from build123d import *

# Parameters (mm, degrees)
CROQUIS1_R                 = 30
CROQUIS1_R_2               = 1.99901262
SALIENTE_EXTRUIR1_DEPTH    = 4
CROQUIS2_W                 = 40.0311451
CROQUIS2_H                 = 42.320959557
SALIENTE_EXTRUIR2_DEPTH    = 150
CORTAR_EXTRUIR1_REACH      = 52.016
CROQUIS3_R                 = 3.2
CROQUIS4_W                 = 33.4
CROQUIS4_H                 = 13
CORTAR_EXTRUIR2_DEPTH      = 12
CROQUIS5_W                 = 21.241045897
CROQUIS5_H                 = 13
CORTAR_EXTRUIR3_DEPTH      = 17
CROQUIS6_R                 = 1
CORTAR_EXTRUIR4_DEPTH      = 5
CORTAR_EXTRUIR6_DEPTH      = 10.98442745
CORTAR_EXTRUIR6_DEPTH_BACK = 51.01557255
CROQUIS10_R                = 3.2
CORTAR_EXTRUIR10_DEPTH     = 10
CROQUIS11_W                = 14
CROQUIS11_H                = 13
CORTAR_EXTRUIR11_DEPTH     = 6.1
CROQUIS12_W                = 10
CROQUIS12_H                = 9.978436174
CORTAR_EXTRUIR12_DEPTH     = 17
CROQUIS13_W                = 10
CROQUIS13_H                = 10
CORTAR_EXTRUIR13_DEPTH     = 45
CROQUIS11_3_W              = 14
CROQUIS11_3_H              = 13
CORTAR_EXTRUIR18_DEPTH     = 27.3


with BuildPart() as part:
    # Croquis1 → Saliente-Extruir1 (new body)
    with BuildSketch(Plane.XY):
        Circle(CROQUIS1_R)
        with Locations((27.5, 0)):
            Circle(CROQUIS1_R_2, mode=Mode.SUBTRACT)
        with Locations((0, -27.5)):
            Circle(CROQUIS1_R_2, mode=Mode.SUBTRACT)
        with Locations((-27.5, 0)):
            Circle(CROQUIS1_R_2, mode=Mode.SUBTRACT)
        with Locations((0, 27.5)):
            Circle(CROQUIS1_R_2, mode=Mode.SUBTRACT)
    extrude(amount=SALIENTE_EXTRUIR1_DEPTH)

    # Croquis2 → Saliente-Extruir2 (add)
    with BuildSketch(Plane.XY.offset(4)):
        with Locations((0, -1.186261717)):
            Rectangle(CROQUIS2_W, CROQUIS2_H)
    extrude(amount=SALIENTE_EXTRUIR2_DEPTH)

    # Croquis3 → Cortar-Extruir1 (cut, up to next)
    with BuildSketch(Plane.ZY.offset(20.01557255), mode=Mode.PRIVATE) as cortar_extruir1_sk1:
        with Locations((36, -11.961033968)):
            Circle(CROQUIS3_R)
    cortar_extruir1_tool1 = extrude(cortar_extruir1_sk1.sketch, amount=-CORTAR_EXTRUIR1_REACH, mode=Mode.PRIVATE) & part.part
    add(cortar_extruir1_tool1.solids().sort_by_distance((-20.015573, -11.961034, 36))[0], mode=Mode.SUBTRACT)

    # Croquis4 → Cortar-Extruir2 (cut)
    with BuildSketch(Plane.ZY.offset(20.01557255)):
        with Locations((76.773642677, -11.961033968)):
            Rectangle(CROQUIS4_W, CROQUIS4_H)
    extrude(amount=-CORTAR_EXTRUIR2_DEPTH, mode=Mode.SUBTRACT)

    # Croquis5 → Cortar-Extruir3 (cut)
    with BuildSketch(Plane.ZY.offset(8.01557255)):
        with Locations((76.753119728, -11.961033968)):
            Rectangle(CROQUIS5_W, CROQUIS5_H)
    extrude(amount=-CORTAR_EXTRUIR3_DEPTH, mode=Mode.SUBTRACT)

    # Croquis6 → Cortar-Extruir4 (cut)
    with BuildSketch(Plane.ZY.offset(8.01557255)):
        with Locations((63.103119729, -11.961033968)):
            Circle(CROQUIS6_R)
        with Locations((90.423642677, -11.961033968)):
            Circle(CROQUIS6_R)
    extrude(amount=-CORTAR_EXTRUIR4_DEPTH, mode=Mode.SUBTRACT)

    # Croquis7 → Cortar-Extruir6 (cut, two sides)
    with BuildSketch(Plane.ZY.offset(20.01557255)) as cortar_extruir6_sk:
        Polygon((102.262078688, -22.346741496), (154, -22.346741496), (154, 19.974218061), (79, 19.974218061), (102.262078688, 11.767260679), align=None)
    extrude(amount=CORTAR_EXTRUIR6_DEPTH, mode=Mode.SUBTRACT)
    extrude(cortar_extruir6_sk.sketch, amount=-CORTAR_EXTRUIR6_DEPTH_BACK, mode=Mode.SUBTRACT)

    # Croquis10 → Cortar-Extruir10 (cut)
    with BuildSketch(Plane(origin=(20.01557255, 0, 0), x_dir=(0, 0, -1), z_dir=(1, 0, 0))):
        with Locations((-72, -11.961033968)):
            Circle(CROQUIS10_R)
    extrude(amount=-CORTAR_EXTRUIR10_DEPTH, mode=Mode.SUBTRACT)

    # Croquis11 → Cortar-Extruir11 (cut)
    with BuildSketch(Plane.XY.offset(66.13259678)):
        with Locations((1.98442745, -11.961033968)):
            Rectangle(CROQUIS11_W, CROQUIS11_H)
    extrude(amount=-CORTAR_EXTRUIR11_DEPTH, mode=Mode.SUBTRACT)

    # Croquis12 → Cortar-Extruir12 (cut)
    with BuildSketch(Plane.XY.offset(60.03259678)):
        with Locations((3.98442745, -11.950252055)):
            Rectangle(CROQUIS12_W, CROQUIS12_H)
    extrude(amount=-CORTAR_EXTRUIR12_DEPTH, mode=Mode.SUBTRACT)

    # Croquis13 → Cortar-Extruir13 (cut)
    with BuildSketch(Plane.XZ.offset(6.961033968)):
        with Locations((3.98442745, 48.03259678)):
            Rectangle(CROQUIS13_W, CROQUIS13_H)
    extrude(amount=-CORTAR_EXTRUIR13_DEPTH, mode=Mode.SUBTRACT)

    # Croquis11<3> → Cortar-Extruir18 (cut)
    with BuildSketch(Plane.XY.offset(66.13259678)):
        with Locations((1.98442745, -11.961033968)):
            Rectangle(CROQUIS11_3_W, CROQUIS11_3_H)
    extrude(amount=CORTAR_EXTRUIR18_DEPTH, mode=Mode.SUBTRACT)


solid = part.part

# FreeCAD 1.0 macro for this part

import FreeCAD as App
import Part
import Sketcher
Q = App.Units.Quantity

doc = App.newDocument("Part")
body = doc.addObject("PartDesign::Body", "Body")

sketch1 = body.newObject("Sketcher::SketchObject", "Sketch")
sketch1.AttachmentSupport = (doc.getObject("XY_Plane"), [""])
sketch1.MapMode = "FlatFace"
sketch1.addGeometry(Part.Circle(App.Vector(0, 0, 0), App.Vector(0, 0, 1), 30), False)
sketch1.addGeometry(Part.Circle(App.Vector(0, -27.5, 0), App.Vector(0, 0, 1), 2), False)
sketch1.addGeometry(Part.Circle(App.Vector(-27.5, 0, 0), App.Vector(0, 0, 1), 2), False)
sketch1.addGeometry(Part.Circle(App.Vector(27.5, 0, 0), App.Vector(0, 0, 1), 2), False)
sketch1.addGeometry(Part.Circle(App.Vector(0, 27.5, 0), App.Vector(0, 0, 1), 2), False)
sketch1.addConstraint(Sketcher.Constraint("Coincident", 0, 3, -1, 1))
sketch1.addConstraint(Sketcher.Constraint("Equal", 1, 2))
sketch1.addConstraint(Sketcher.Constraint("Equal", 2, 3))
sketch1.addConstraint(Sketcher.Constraint("Equal", 3, 4))
sketch1.addConstraint(Sketcher.Constraint("Symmetric", 2, 3, 3, 3, -1, 1))
sketch1.addConstraint(Sketcher.Constraint("Symmetric", 1, 3, 4, 3, -1, 1))
sketch1.addConstraint(Sketcher.Constraint("PointOnObject", 1, 3, -2))
sketch1.addConstraint(Sketcher.Constraint("PointOnObject", 2, 3, -1))
sketch1.addConstraint(Sketcher.Constraint("Diameter", 0, Q("60 mm")))
sketch1.addConstraint(Sketcher.Constraint("DistanceX", 2, 3, 3, 3, Q("55 mm")))
sketch1.addConstraint(Sketcher.Constraint("DistanceY", 1, 3, 4, 3, Q("55 mm")))
sketch1.addConstraint(Sketcher.Constraint("Diameter", 1, Q("3.998025 mm")))
pad1 = body.newObject("PartDesign::Pad", "Pad")
pad1.Profile = sketch1
pad1.Length = 4

sketch2 = body.newObject("Sketcher::SketchObject", "Sketch001")
sketch2.AttachmentSupport = (doc.getObject("XY_Plane"), [""])
sketch2.MapMode = "FlatFace"
sketch2.AttachmentOffset = App.Placement(App.Vector(0, 0, 4), App.Rotation())
sketch2.addGeometry(Part.LineSegment(App.Vector(-20, 20, 0), App.Vector(-20, -22, 0)), False)
sketch2.addGeometry(Part.LineSegment(App.Vector(-20, -22, 0), App.Vector(20, -22, 0)), False)
sketch2.addGeometry(Part.LineSegment(App.Vector(20, -22, 0), App.Vector(20, 20, 0)), False)
sketch2.addGeometry(Part.LineSegment(App.Vector(20, 20, 0), App.Vector(-20, 20, 0)), False)
sketch2.addConstraint(Sketcher.Constraint("Coincident", 0, 2, 1, 1))
sketch2.addConstraint(Sketcher.Constraint("Coincident", 1, 2, 2, 1))
sketch2.addConstraint(Sketcher.Constraint("Coincident", 2, 2, 3, 1))
sketch2.addConstraint(Sketcher.Constraint("Coincident", 3, 2, 0, 1))
sketch2.addConstraint(Sketcher.Constraint("Vertical", 0))
sketch2.addConstraint(Sketcher.Constraint("Horizontal", 1))
sketch2.addConstraint(Sketcher.Constraint("Vertical", 2))
sketch2.addConstraint(Sketcher.Constraint("Horizontal", 3))
sketch2.addConstraint(Sketcher.Constraint("DistanceY", 0, 2, 0, 1, Q("42.32096 mm")))
sketch2.addConstraint(Sketcher.Constraint("DistanceX", 1, 1, 1, 2, Q("40.031145 mm")))
sketch2.addConstraint(Sketcher.Constraint("DistanceY", 0, 2, -1, 1, Q("22.346741 mm")))
sketch2.addConstraint(Sketcher.Constraint("DistanceX", 0, 2, -1, 1, Q("20.015573 mm")))
pad2 = body.newObject("PartDesign::Pad", "Pad001")
pad2.Profile = sketch2
pad2.Length = 150

sketch3 = body.newObject("Sketcher::SketchObject", "Sketch002")
sketch3.AttachmentSupport = (doc.getObject("YZ_Plane"), [""])
sketch3.MapMode = "FlatFace"
sketch3.AttachmentOffset = App.Placement(App.Vector(0, 0, -20.015573), App.Rotation())
sketch3.addGeometry(Part.Circle(App.Vector(-12, 36, 0), App.Vector(0, 0, 1), 3.2), False)
sketch3.addConstraint(Sketcher.Constraint("Diameter", 0, Q("6.4 mm")))
sketch3.addConstraint(Sketcher.Constraint("DistanceY", -1, 1, 0, 3, Q("36 mm")))
sketch3.addConstraint(Sketcher.Constraint("DistanceX", 0, 3, -1, 1, Q("11.961034 mm")))
pocket1 = body.newObject("PartDesign::Pocket", "Pocket")
pocket1.Profile = sketch3
pocket1.Type = "UpToFirst"
pocket1.Reversed = True

sketch4 = body.newObject("Sketcher::SketchObject", "Sketch003")
sketch4.AttachmentSupport = (doc.getObject("YZ_Plane"), [""])
sketch4.MapMode = "FlatFace"
sketch4.AttachmentOffset = App.Placement(App.Vector(0, 0, -20.015573), App.Rotation())
sketch4.addGeometry(Part.LineSegment(App.Vector(-5, 60, 0), App.Vector(-18, 60, 0)), False)
sketch4.addGeometry(Part.LineSegment(App.Vector(-18, 60, 0), App.Vector(-18, 93, 0)), False)
sketch4.addGeometry(Part.LineSegment(App.Vector(-18, 93, 0), App.Vector(-5, 93, 0)), False)
sketch4.addGeometry(Part.LineSegment(App.Vector(-5, 93, 0), App.Vector(-5, 60, 0)), False)
sketch4.addConstraint(Sketcher.Constraint("Coincident", 0, 2, 1, 1))
sketch4.addConstraint(Sketcher.Constraint("Coincident", 1, 2, 2, 1))
sketch4.addConstraint(Sketcher.Constraint("Coincident", 2, 2, 3, 1))
sketch4.addConstraint(Sketcher.Constraint("Coincident", 3, 2, 0, 1))
sketch4.addConstraint(Sketcher.Constraint("Horizontal", 0))
sketch4.addConstraint(Sketcher.Constraint("Vertical", 1))
sketch4.addConstraint(Sketcher.Constraint("Horizontal", 2))
sketch4.addConstraint(Sketcher.Constraint("Vertical", 3))
sketch4.addConstraint(Sketcher.Constraint("DistanceX", 0, 2, 0, 1, Q("13 mm")))
sketch4.addConstraint(Sketcher.Constraint("DistanceY", 1, 1, 1, 2, Q("33.4 mm")))
sketch4.addConstraint(Sketcher.Constraint("DistanceX", 0, 2, -1, 1, Q("18.461034 mm")))
sketch4.addConstraint(Sketcher.Constraint("DistanceY", -1, 1, 0, 2, Q("60.073643 mm")))
pocket2 = body.newObject("PartDesign::Pocket", "Pocket001")
pocket2.Profile = sketch4
pocket2.Length = 12
pocket2.Reversed = True

sketch5 = body.newObject("Sketcher::SketchObject", "Sketch004")
sketch5.AttachmentSupport = (doc.getObject("YZ_Plane"), [""])
sketch5.MapMode = "FlatFace"
sketch5.AttachmentOffset = App.Placement(App.Vector(0, 0, -8.015573), App.Rotation())
sketch5.addGeometry(Part.LineSegment(App.Vector(-5, 66, 0), App.Vector(-18, 66, 0)), False)
sketch5.addGeometry(Part.LineSegment(App.Vector(-18, 66, 0), App.Vector(-18, 87, 0)), False)
sketch5.addGeometry(Part.LineSegment(App.Vector(-18, 87, 0), App.Vector(-5, 87, 0)), False)
sketch5.addGeometry(Part.LineSegment(App.Vector(-5, 87, 0), App.Vector(-5, 66, 0)), False)
sketch5.addConstraint(Sketcher.Constraint("Coincident", 0, 2, 1, 1))
sketch5.addConstraint(Sketcher.Constraint("Coincident", 1, 2, 2, 1))
sketch5.addConstraint(Sketcher.Constraint("Coincident", 2, 2, 3, 1))
sketch5.addConstraint(Sketcher.Constraint("Coincident", 3, 2, 0, 1))
sketch5.addConstraint(Sketcher.Constraint("Horizontal", 0))
sketch5.addConstraint(Sketcher.Constraint("Vertical", 1))
sketch5.addConstraint(Sketcher.Constraint("Horizontal", 2))
sketch5.addConstraint(Sketcher.Constraint("Vertical", 3))
sketch5.addConstraint(Sketcher.Constraint("DistanceX", 0, 2, 0, 1, Q("13 mm")))
sketch5.addConstraint(Sketcher.Constraint("DistanceY", 1, 1, 1, 2, Q("21.241046 mm")))
sketch5.addConstraint(Sketcher.Constraint("DistanceX", 0, 2, -1, 1, Q("18.461034 mm")))
sketch5.addConstraint(Sketcher.Constraint("DistanceY", -1, 1, 0, 2, Q("66.132597 mm")))
pocket3 = body.newObject("PartDesign::Pocket", "Pocket002")
pocket3.Profile = sketch5
pocket3.Length = 17
pocket3.Reversed = True

sketch6 = body.newObject("Sketcher::SketchObject", "Sketch005")
sketch6.AttachmentSupport = (doc.getObject("YZ_Plane"), [""])
sketch6.MapMode = "FlatFace"
sketch6.AttachmentOffset = App.Placement(App.Vector(0, 0, -8.015573), App.Rotation())
sketch6.addGeometry(Part.Circle(App.Vector(-12, 63.1, 0), App.Vector(0, 0, 1), 1), False)
sketch6.addGeometry(Part.Circle(App.Vector(-12, 90.4, 0), App.Vector(0, 0, 1), 1), False)
sketch6.addConstraint(Sketcher.Constraint("Equal", 0, 1))
sketch6.addConstraint(Sketcher.Constraint("Vertical", 0, 3, 1, 3))
sketch6.addConstraint(Sketcher.Constraint("Diameter", 0, Q("2 mm")))
sketch6.addConstraint(Sketcher.Constraint("DistanceY", -1, 1, 0, 3, Q("63.10312 mm")))
sketch6.addConstraint(Sketcher.Constraint("DistanceX", 0, 3, -1, 1, Q("11.961034 mm")))
sketch6.addConstraint(Sketcher.Constraint("DistanceY", -1, 1, 1, 3, Q("90.423643 mm")))
pocket4 = body.newObject("PartDesign::Pocket", "Pocket003")
pocket4.Profile = sketch6
pocket4.Length = 5
pocket4.Reversed = True

sketch7 = body.newObject("Sketcher::SketchObject", "Sketch006")
sketch7.AttachmentSupport = (doc.getObject("YZ_Plane"), [""])
sketch7.MapMode = "FlatFace"
sketch7.AttachmentOffset = App.Placement(App.Vector(0, 0, -20.015573), App.Rotation())
sketch7.addGeometry(Part.LineSegment(App.Vector(-22, 102, 0), App.Vector(-22, 154, 0)), False)
sketch7.addGeometry(Part.LineSegment(App.Vector(-22, 154, 0), App.Vector(20, 154, 0)), False)
sketch7.addGeometry(Part.LineSegment(App.Vector(20, 154, 0), App.Vector(20, 79, 0)), False)
sketch7.addGeometry(Part.LineSegment(App.Vector(20, 79, 0), App.Vector(12, 102, 0)), False)
sketch7.addGeometry(Part.LineSegment(App.Vector(12, 102, 0), App.Vector(-22, 102, 0)), False)
sketch7.addConstraint(Sketcher.Constraint("Coincident", 0, 2, 1, 1))
sketch7.addConstraint(Sketcher.Constraint("Coincident", 1, 2, 2, 1))
sketch7.addConstraint(Sketcher.Constraint("Coincident", 2, 2, 3, 1))
sketch7.addConstraint(Sketcher.Constraint("Coincident", 3, 2, 4, 1))
sketch7.addConstraint(Sketcher.Constraint("Coincident", 4, 2, 0, 1))
sketch7.addConstraint(Sketcher.Constraint("Vertical", 0))
sketch7.addConstraint(Sketcher.Constraint("Horizontal", 1))
sketch7.addConstraint(Sketcher.Constraint("Vertical", 2))
sketch7.addConstraint(Sketcher.Constraint("Horizontal", 4))
sketch7.addConstraint(Sketcher.Constraint("DistanceY", 2, 2, 2, 1, Q("75 mm")))
sketch7.addConstraint(Sketcher.Constraint("DistanceY", -1, 1, 0, 2, Q("154 mm")))
sketch7.addConstraint(Sketcher.Constraint("DistanceX", 1, 1, 1, 2, Q("42.32096 mm")))
sketch7.addConstraint(Sketcher.Constraint("DistanceY", 0, 1, 0, 2, Q("51.737921 mm")))
sketch7.addConstraint(Sketcher.Constraint("DistanceX", 4, 2, 4, 1, Q("34.114002 mm")))
sketch7.addConstraint(Sketcher.Constraint("DistanceX", 0, 2, -1, 1, Q("22.346741 mm")))
pocket5 = body.newObject("PartDesign::Pocket", "Pocket004")
pocket5.Profile = sketch7
pocket5.Type = "ThroughAll"
pocket5.Midplane = True

sketch8 = body.newObject("Sketcher::SketchObject", "Sketch007")
sketch8.AttachmentSupport = (doc.getObject("YZ_Plane"), [""])
sketch8.MapMode = "FlatFace"
sketch8.AttachmentOffset = App.Placement(App.Vector(0, 0, 20.015573), App.Rotation())
sketch8.addGeometry(Part.Circle(App.Vector(-12, 72, 0), App.Vector(0, 0, 1), 3.2), False)
sketch8.addConstraint(Sketcher.Constraint("Diameter", 0, Q("6.4 mm")))
sketch8.addConstraint(Sketcher.Constraint("DistanceY", -1, 1, 0, 3, Q("72 mm")))
sketch8.addConstraint(Sketcher.Constraint("DistanceX", 0, 3, -1, 1, Q("11.961034 mm")))
pocket6 = body.newObject("PartDesign::Pocket", "Pocket005")
pocket6.Profile = sketch8
pocket6.Length = 10

sketch9 = body.newObject("Sketcher::SketchObject", "Sketch008")
sketch9.AttachmentSupport = (doc.getObject("XY_Plane"), [""])
sketch9.MapMode = "FlatFace"
sketch9.AttachmentOffset = App.Placement(App.Vector(0, 0, 66.132597), App.Rotation())
sketch9.addGeometry(Part.LineSegment(App.Vector(-5, -5, 0), App.Vector(-5, -18, 0)), False)
sketch9.addGeometry(Part.LineSegment(App.Vector(-5, -18, 0), App.Vector(9, -18, 0)), False)
sketch9.addGeometry(Part.LineSegment(App.Vector(9, -18, 0), App.Vector(9, -5, 0)), False)
sketch9.addGeometry(Part.LineSegment(App.Vector(9, -5, 0), App.Vector(-5, -5, 0)), False)
sketch9.addConstraint(Sketcher.Constraint("Coincident", 0, 2, 1, 1))
sketch9.addConstraint(Sketcher.Constraint("Coincident", 1, 2, 2, 1))
sketch9.addConstraint(Sketcher.Constraint("Coincident", 2, 2, 3, 1))
sketch9.addConstraint(Sketcher.Constraint("Coincident", 3, 2, 0, 1))
sketch9.addConstraint(Sketcher.Constraint("Vertical", 0))
sketch9.addConstraint(Sketcher.Constraint("Horizontal", 1))
sketch9.addConstraint(Sketcher.Constraint("Vertical", 2))
sketch9.addConstraint(Sketcher.Constraint("Horizontal", 3))
sketch9.addConstraint(Sketcher.Constraint("DistanceX", 1, 1, 1, 2, Q("14 mm")))
sketch9.addConstraint(Sketcher.Constraint("DistanceY", 0, 2, 0, 1, Q("13 mm")))
sketch9.addConstraint(Sketcher.Constraint("DistanceX", 0, 2, -1, 1, Q("5.015573 mm")))
sketch9.addConstraint(Sketcher.Constraint("DistanceY", 0, 2, -1, 1, Q("18.461034 mm")))
pocket7 = body.newObject("PartDesign::Pocket", "Pocket006")
pocket7.Profile = sketch9
pocket7.Length = 6.1

sketch10 = body.newObject("Sketcher::SketchObject", "Sketch009")
sketch10.AttachmentSupport = (doc.getObject("XY_Plane"), [""])
sketch10.MapMode = "FlatFace"
sketch10.AttachmentOffset = App.Placement(App.Vector(0, 0, 60.032597), App.Rotation())
sketch10.addGeometry(Part.LineSegment(App.Vector(-1, -7, 0), App.Vector(-1, -17, 0)), False)
sketch10.addGeometry(Part.LineSegment(App.Vector(-1, -17, 0), App.Vector(9, -17, 0)), False)
sketch10.addGeometry(Part.LineSegment(App.Vector(9, -17, 0), App.Vector(9, -7, 0)), False)
sketch10.addGeometry(Part.LineSegment(App.Vector(9, -7, 0), App.Vector(-1, -7, 0)), False)
sketch10.addConstraint(Sketcher.Constraint("Coincident", 0, 2, 1, 1))
sketch10.addConstraint(Sketcher.Constraint("Coincident", 1, 2, 2, 1))
sketch10.addConstraint(Sketcher.Constraint("Coincident", 2, 2, 3, 1))
sketch10.addConstraint(Sketcher.Constraint("Coincident", 3, 2, 0, 1))
sketch10.addConstraint(Sketcher.Constraint("Vertical", 0))
sketch10.addConstraint(Sketcher.Constraint("Horizontal", 1))
sketch10.addConstraint(Sketcher.Constraint("Vertical", 2))
sketch10.addConstraint(Sketcher.Constraint("Horizontal", 3))
sketch10.addConstraint(Sketcher.Constraint("DistanceX", 1, 1, 1, 2, Q("10 mm")))
sketch10.addConstraint(Sketcher.Constraint("DistanceY", 0, 2, 0, 1, Q("9.978436 mm")))
sketch10.addConstraint(Sketcher.Constraint("DistanceY", 0, 2, -1, 1, Q("16.93947 mm")))
sketch10.addConstraint(Sketcher.Constraint("DistanceX", 0, 2, -1, 1, Q("1.015573 mm")))
pocket8 = body.newObject("PartDesign::Pocket", "Pocket007")
pocket8.Profile = sketch10
pocket8.Length = 17

sketch11 = body.newObject("Sketcher::SketchObject", "Sketch010")
sketch11.AttachmentSupport = (doc.getObject("XZ_Plane"), [""])
sketch11.MapMode = "FlatFace"
sketch11.AttachmentOffset = App.Placement(App.Vector(0, 0, 6.961034), App.Rotation())
sketch11.addGeometry(Part.LineSegment(App.Vector(-1, 53, 0), App.Vector(-1, 43, 0)), False)
sketch11.addGeometry(Part.LineSegment(App.Vector(-1, 43, 0), App.Vector(9, 43, 0)), False)
sketch11.addGeometry(Part.LineSegment(App.Vector(9, 43, 0), App.Vector(9, 53, 0)), False)
sketch11.addGeometry(Part.LineSegment(App.Vector(9, 53, 0), App.Vector(-1, 53, 0)), False)
sketch11.addConstraint(Sketcher.Constraint("Coincident", 0, 2, 1, 1))
sketch11.addConstraint(Sketcher.Constraint("Coincident", 1, 2, 2, 1))
sketch11.addConstraint(Sketcher.Constraint("Coincident", 2, 2, 3, 1))
sketch11.addConstraint(Sketcher.Constraint("Coincident", 3, 2, 0, 1))
sketch11.addConstraint(Sketcher.Constraint("Vertical", 0))
sketch11.addConstraint(Sketcher.Constraint("Horizontal", 1))
sketch11.addConstraint(Sketcher.Constraint("Vertical", 2))
sketch11.addConstraint(Sketcher.Constraint("Horizontal", 3))
sketch11.addConstraint(Sketcher.Constraint("Equal", 3, 0))
sketch11.addConstraint(Sketcher.Constraint("DistanceX", 1, 1, 1, 2, Q("10 mm")))
sketch11.addConstraint(Sketcher.Constraint("DistanceX", 0, 2, -1, 1, Q("1.015573 mm")))
sketch11.addConstraint(Sketcher.Constraint("DistanceY", -1, 1, 0, 2, Q("43.032597 mm")))
pocket9 = body.newObject("PartDesign::Pocket", "Pocket008")
pocket9.Profile = sketch11
pocket9.Length = 45

sketch12 = body.newObject("Sketcher::SketchObject", "Sketch011")
sketch12.AttachmentSupport = (doc.getObject("XY_Plane"), [""])
sketch12.MapMode = "FlatFace"
sketch12.AttachmentOffset = App.Placement(App.Vector(0, 0, 66.132597), App.Rotation())
sketch12.addGeometry(Part.LineSegment(App.Vector(-5, -5, 0), App.Vector(-5, -18, 0)), False)
sketch12.addGeometry(Part.LineSegment(App.Vector(-5, -18, 0), App.Vector(9, -18, 0)), False)
sketch12.addGeometry(Part.LineSegment(App.Vector(9, -18, 0), App.Vector(9, -5, 0)), False)
sketch12.addGeometry(Part.LineSegment(App.Vector(9, -5, 0), App.Vector(-5, -5, 0)), False)
sketch12.addConstraint(Sketcher.Constraint("Coincident", 0, 2, 1, 1))
sketch12.addConstraint(Sketcher.Constraint("Coincident", 1, 2, 2, 1))
sketch12.addConstraint(Sketcher.Constraint("Coincident", 2, 2, 3, 1))
sketch12.addConstraint(Sketcher.Constraint("Coincident", 3, 2, 0, 1))
sketch12.addConstraint(Sketcher.Constraint("Vertical", 0))
sketch12.addConstraint(Sketcher.Constraint("Horizontal", 1))
sketch12.addConstraint(Sketcher.Constraint("Vertical", 2))
sketch12.addConstraint(Sketcher.Constraint("Horizontal", 3))
sketch12.addConstraint(Sketcher.Constraint("DistanceX", 1, 1, 1, 2, Q("14 mm")))
sketch12.addConstraint(Sketcher.Constraint("DistanceY", 0, 2, 0, 1, Q("13 mm")))
sketch12.addConstraint(Sketcher.Constraint("DistanceX", 0, 2, -1, 1, Q("5.015573 mm")))
sketch12.addConstraint(Sketcher.Constraint("DistanceY", 0, 2, -1, 1, Q("18.461034 mm")))
pocket10 = body.newObject("PartDesign::Pocket", "Pocket009")
pocket10.Profile = sketch12
pocket10.Length = 27.3
pocket10.Reversed = True

doc.recompute()
